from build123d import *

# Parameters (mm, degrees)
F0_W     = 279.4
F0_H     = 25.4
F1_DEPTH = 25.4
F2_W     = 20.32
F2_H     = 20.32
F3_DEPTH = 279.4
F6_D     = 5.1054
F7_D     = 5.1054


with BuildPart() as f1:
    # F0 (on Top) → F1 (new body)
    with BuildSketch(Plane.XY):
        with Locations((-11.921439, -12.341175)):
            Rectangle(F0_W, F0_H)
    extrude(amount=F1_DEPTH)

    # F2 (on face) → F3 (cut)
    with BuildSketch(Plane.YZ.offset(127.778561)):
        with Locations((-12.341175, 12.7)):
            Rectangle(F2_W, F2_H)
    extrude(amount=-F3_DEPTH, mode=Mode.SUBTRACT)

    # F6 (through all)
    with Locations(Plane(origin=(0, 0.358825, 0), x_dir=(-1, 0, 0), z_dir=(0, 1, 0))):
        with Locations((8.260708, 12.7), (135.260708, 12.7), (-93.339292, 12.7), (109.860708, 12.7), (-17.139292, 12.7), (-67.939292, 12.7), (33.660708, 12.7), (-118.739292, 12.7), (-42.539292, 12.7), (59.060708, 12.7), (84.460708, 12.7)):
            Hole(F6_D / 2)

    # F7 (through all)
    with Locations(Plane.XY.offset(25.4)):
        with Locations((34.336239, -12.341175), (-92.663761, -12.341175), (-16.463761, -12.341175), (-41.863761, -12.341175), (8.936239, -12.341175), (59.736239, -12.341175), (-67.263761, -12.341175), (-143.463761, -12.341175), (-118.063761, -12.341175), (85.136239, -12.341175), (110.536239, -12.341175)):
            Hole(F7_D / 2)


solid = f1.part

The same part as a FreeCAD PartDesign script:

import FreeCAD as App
import Part
import Sketcher
Q = App.Units.Quantity

doc = App.newDocument("Part")
params = doc.addObject("Spreadsheet::Sheet", "Params")
for row, (alias, value) in enumerate([
    ("sketch1_width", "11 in"),
    ("sketch1_height", "1 in"),
    ("pad1_length", "1 in"),
    ("sketch2_width", "0.8 in"),
    ("pocket1_length", "11 in"),
    ("sketch3_diameter", "0.201 in"),
    ("hole_diameter", "0.201 in"),
    ("sketch4_diameter", "0.201 in"),
    ("hole2_diameter", "0.201 in"),
], start=1):
    params.set(f"A{row}", alias)
    params.set(f"B{row}", "=" + value)
    params.setAlias(f"B{row}", alias)

body = doc.addObject("PartDesign::Body", "Body")

# Sketch on XY plane
sketch1 = body.newObject("Sketcher::SketchObject", "Sketch")
sketch1.AttachmentSupport = (doc.getObject("XY_Plane"), [""])
sketch1.MapMode = "FlatFace"
sketch1.addGeometry(Part.LineSegment(App.Vector(-151.621439, 0.358825, 0), App.Vector(-151.621439, -25.041175, 0)), False)
sketch1.addGeometry(Part.LineSegment(App.Vector(-151.621439, -25.041175, 0), App.Vector(127.778561, -25.041175, 0)), False)
sketch1.addGeometry(Part.LineSegment(App.Vector(127.778561, -25.041175, 0), App.Vector(127.778561, 0.358825, 0)), False)
sketch1.addGeometry(Part.LineSegment(App.Vector(127.778561, 0.358825, 0), App.Vector(-151.621439, 0.358825, 0)), False)
sketch1.addConstraint(Sketcher.Constraint("Coincident", 0, 2, 1, 1))
sketch1.addConstraint(Sketcher.Constraint("Coincident", 1, 2, 2, 1))
sketch1.addConstraint(Sketcher.Constraint("Coincident", 2, 2, 3, 1))
sketch1.addConstraint(Sketcher.Constraint("Coincident", 3, 2, 0, 1))
sketch1.addConstraint(Sketcher.Constraint("Vertical", 0))
sketch1.addConstraint(Sketcher.Constraint("Horizontal", 1))
sketch1.addConstraint(Sketcher.Constraint("Vertical", 2))
sketch1.addConstraint(Sketcher.Constraint("Horizontal", 3))
sketch1.addConstraint(Sketcher.Constraint("DistanceX", 1, 1, 1, 2, Q("11 in")))
sketch1.addConstraint(Sketcher.Constraint("DistanceY", 0, 2, 0, 1, Q("1 in")))
sketch1.addConstraint(Sketcher.Constraint("DistanceX", 0, 2, -1, 1, 151.621439))
sketch1.addConstraint(Sketcher.Constraint("DistanceY", 0, 2, -1, 1, 25.041175))
sketch1.setExpression("Constraints[8]", "Params.sketch1_width")
sketch1.setExpression("Constraints[9]", "Params.sketch1_height")
pad1 = body.newObject("PartDesign::Pad", "Pad")
pad1.Profile = sketch1
pad1.setExpression("Length", "Params.pad1_length")

# Sketch on YZ plane
sketch2 = body.newObject("Sketcher::SketchObject", "Sketch001")
sketch2.AttachmentSupport = (doc.getObject("YZ_Plane"), [""])
sketch2.MapMode = "FlatFace"
sketch2.AttachmentOffset = App.Placement(App.Vector(0, 0, 127.778561), App.Rotation())
sketch2.addGeometry(Part.LineSegment(App.Vector(-22.501175, 22.86, 0), App.Vector(-22.501175, 2.54, 0)), False)
sketch2.addGeometry(Part.LineSegment(App.Vector(-22.501175, 2.54, 0), App.Vector(-2.181175, 2.54, 0)), False)
sketch2.addGeometry(Part.LineSegment(App.Vector(-2.181175, 2.54, 0), App.Vector(-2.181175, 22.86, 0)), False)
sketch2.addGeometry(Part.LineSegment(App.Vector(-2.181175, 22.86, 0), App.Vector(-22.501175, 22.86, 0)), False)
sketch2.addConstraint(Sketcher.Constraint("Coincident", 0, 2, 1, 1))
sketch2.addConstraint(Sketcher.Constraint("Coincident", 1, 2, 2, 1))
sketch2.addConstraint(Sketcher.Constraint("Coincident", 2, 2, 3, 1))
sketch2.addConstraint(Sketcher.Constraint("Coincident", 3, 2, 0, 1))
sketch2.addConstraint(Sketcher.Constraint("Vertical", 0))
sketch2.addConstraint(Sketcher.Constraint("Horizontal", 1))
sketch2.addConstraint(Sketcher.Constraint("Vertical", 2))
sketch2.addConstraint(Sketcher.Constraint("Horizontal", 3))
sketch2.addConstraint(Sketcher.Constraint("Equal", 3, 0))
sketch2.addConstraint(Sketcher.Constraint("DistanceX", 1, 1, 1, 2, Q("0.8 in")))
sketch2.addConstraint(Sketcher.Constraint("DistanceY", -1, 1, 0, 2, Q("0.1 in")))
sketch2.addConstraint(Sketcher.Constraint("DistanceX", 0, 2, -1, 1, 22.501175))
sketch2.setExpression("Constraints[9]", "Params.sketch2_width")
pocket1 = body.newObject("PartDesign::Pocket", "Pocket")
pocket1.Profile = sketch2
pocket1.setExpression("Length", "Params.pocket1_length")

# Sketch on XZ plane
sketch3 = body.newObject("Sketcher::SketchObject", "Sketch002")
sketch3.AttachmentSupport = (doc.getObject("XZ_Plane"), [""])
sketch3.MapMode = "FlatFace"
sketch3.AttachmentOffset = App.Placement(App.Vector(0, 0, -0.358825), App.Rotation())
sketch3.addGeometry(Part.Circle(App.Vector(-8.260708, 12.7, 0), App.Vector(0, 0, 1), 2.5527), False)
sketch3.addGeometry(Part.Circle(App.Vector(-135.260708, 12.7, 0), App.Vector(0, 0, 1), 2.5527), False)
sketch3.addGeometry(Part.Circle(App.Vector(93.339292, 12.7, 0), App.Vector(0, 0, 1), 2.5527), False)
sketch3.addGeometry(Part.Circle(App.Vector(-109.860708, 12.7, 0), App.Vector(0, 0, 1), 2.5527), False)
sketch3.addGeometry(Part.Circle(App.Vector(17.139292, 12.7, 0), App.Vector(0, 0, 1), 2.5527), False)
sketch3.addGeometry(Part.Circle(App.Vector(67.939292, 12.7, 0), App.Vector(0, 0, 1), 2.5527), False)
sketch3.addGeometry(Part.Circle(App.Vector(-33.660708, 12.7, 0), App.Vector(0, 0, 1), 2.5527), False)
sketch3.addGeometry(Part.Circle(App.Vector(118.739292, 12.7, 0), App.Vector(0, 0, 1), 2.5527), False)
sketch3.addGeometry(Part.Circle(App.Vector(42.539292, 12.7, 0), App.Vector(0, 0, 1), 2.5527), False)
sketch3.addGeometry(Part.Circle(App.Vector(-59.060708, 12.7, 0), App.Vector(0, 0, 1), 2.5527), False)
sketch3.addGeometry(Part.Circle(App.Vector(-84.460708, 12.7, 0), App.Vector(0, 0, 1), 2.5527), False)
sketch3.addConstraint(Sketcher.Constraint("Equal", 0, 1))
sketch3.addConstraint(Sketcher.Constraint("Equal", 1, 2))
sketch3.addConstraint(Sketcher.Constraint("Equal", 2, 3))
sketch3.addConstraint(Sketcher.Constraint("Equal", 3, 4))
sketch3.addConstraint(Sketcher.Constraint("Equal", 4, 5))
sketch3.addConstraint(Sketcher.Constraint("Equal", 5, 6))
sketch3.addConstraint(Sketcher.Constraint("Equal", 6, 7))
sketch3.addConstraint(Sketcher.Constraint("Equal", 7, 8))
sketch3.addConstraint(Sketcher.Constraint("Equal", 8, 9))
sketch3.addConstraint(Sketcher.Constraint("Equal", 9, 10))
sketch3.addConstraint(Sketcher.Constraint("Horizontal", 0, 3, 1, 3))
sketch3.addConstraint(Sketcher.Constraint("Horizontal", 1, 3, 2, 3))
sketch3.addConstraint(Sketcher.Constraint("Horizontal", 2, 3, 3, 3))
sketch3.addConstraint(Sketcher.Constraint("Horizontal", 3, 3, 4, 3))
sketch3.addConstraint(Sketcher.Constraint("Horizontal", 4, 3, 5, 3))
sketch3.addConstraint(Sketcher.Constraint("Horizontal", 5, 3, 6, 3))
sketch3.addConstraint(Sketcher.Constraint("Horizontal", 6, 3, 7, 3))
sketch3.addConstraint(Sketcher.Constraint("Horizontal", 7, 3, 8, 3))
sketch3.addConstraint(Sketcher.Constraint("Horizontal", 8, 3, 9, 3))
sketch3.addConstraint(Sketcher.Constraint("Horizontal", 9, 3, 10, 3))
sketch3.addConstraint(Sketcher.Constraint("Diameter", 0, Q("0.201 in")))
sketch3.addConstraint(Sketcher.Constraint("DistanceX", 1, 3, 0, 3, Q("5 in")))
sketch3.addConstraint(Sketcher.Constraint("DistanceX", 0, 3, 2, 3, Q("4 in")))
sketch3.addConstraint(Sketcher.Constraint("DistanceX", 1, 3, 3, 3, Q("1 in")))
sketch3.addConstraint(Sketcher.Constraint("DistanceX", 0, 3, 4, 3, Q("1 in")))
sketch3.addConstraint(Sketcher.Constraint("DistanceX", 5, 3, 2, 3, Q("1 in")))
sketch3.addConstraint(Sketcher.Constraint("DistanceX", 6, 3, 0, 3, Q("1 in")))
sketch3.addConstraint(Sketcher.Constraint("DistanceX", 2, 3, 7, 3, Q("1 in")))
sketch3.addConstraint(Sketcher.Constraint("DistanceX", 8, 3, 5, 3, Q("1 in")))
sketch3.addConstraint(Sketcher.Constraint("DistanceX", 9, 3, 6, 3, Q("1 in")))
sketch3.addConstraint(Sketcher.Constraint("DistanceX", 10, 3, 9, 3, Q("1 in")))
sketch3.addConstraint(Sketcher.Constraint("DistanceY", -1, 1, 0, 3, Q("0.5 in")))
sketch3.addConstraint(Sketcher.Constraint("DistanceX", 1, 3, -1, 1, 135.260708))
sketch3.setExpression("Constraints[20]", "Params.sketch3_diameter")
doc.recompute()
hole = body.newObject("PartDesign::Hole", "Hole")
hole.Profile = sketch3
hole.ThreadType = "None"
hole.setExpression("Diameter", "Params.hole_diameter")
hole.DepthType = "ThroughAll"
hole.Reversed = True

# Sketch on XY plane
sketch4 = body.newObject("Sketcher::SketchObject", "Sketch003")
sketch4.AttachmentSupport = (doc.getObject("XY_Plane"), [""])
sketch4.MapMode = "FlatFace"
sketch4.AttachmentOffset = App.Placement(App.Vector(0, 0, 1 * 25.4), App.Rotation())
sketch4.addGeometry(Part.Circle(App.Vector(34.336239, -12.341175, 0), App.Vector(0, 0, 1), 2.5527), False)
sketch4.addGeometry(Part.Circle(App.Vector(-92.663761, -12.341175, 0), App.Vector(0, 0, 1), 2.5527), False)
sketch4.addGeometry(Part.Circle(App.Vector(-16.463761, -12.341175, 0), App.Vector(0, 0, 1), 2.5527), False)
sketch4.addGeometry(Part.Circle(App.Vector(-41.863761, -12.341175, 0), App.Vector(0, 0, 1), 2.5527), False)
sketch4.addGeometry(Part.Circle(App.Vector(8.936239, -12.341175, 0), App.Vector(0, 0, 1), 2.5527), False)
sketch4.addGeometry(Part.Circle(App.Vector(59.736239, -12.341175, 0), App.Vector(0, 0, 1), 2.5527), False)
sketch4.addGeometry(Part.Circle(App.Vector(-67.263761, -12.341175, 0), App.Vector(0, 0, 1), 2.5527), False)
sketch4.addGeometry(Part.Circle(App.Vector(-143.463761, -12.341175, 0), App.Vector(0, 0, 1), 2.5527), False)
sketch4.addGeometry(Part.Circle(App.Vector(-118.063761, -12.341175, 0), App.Vector(0, 0, 1), 2.5527), False)
sketch4.addGeometry(Part.Circle(App.Vector(85.136239, -12.341175, 0), App.Vector(0, 0, 1), 2.5527), False)
sketch4.addGeometry(Part.Circle(App.Vector(110.536239, -12.341175, 0), App.Vector(0, 0, 1), 2.5527), False)
sketch4.addConstraint(Sketcher.Constraint("Equal", 0, 1))
sketch4.addConstraint(Sketcher.Constraint("Equal", 1, 2))
sketch4.addConstraint(Sketcher.Constraint("Equal", 2, 3))
sketch4.addConstraint(Sketcher.Constraint("Equal", 3, 4))
sketch4.addConstraint(Sketcher.Constraint("Equal", 4, 5))
sketch4.addConstraint(Sketcher.Constraint("Equal", 5, 6))
sketch4.addConstraint(Sketcher.Constraint("Equal", 6, 7))
sketch4.addConstraint(Sketcher.Constraint("Equal", 7, 8))
sketch4.addConstraint(Sketcher.Constraint("Equal", 8, 9))
sketch4.addConstraint(Sketcher.Constraint("Equal", 9, 10))
sketch4.addConstraint(Sketcher.Constraint("Horizontal", 0, 3, 1, 3))
sketch4.addConstraint(Sketcher.Constraint("Horizontal", 1, 3, 2, 3))
sketch4.addConstraint(Sketcher.Constraint("Horizontal", 2, 3, 3, 3))
sketch4.addConstraint(Sketcher.Constraint("Horizontal", 3, 3, 4, 3))
sketch4.addConstraint(Sketcher.Constraint("Horizontal", 4, 3, 5, 3))
sketch4.addConstraint(Sketcher.Constraint("Horizontal", 5, 3, 6, 3))
sketch4.addConstraint(Sketcher.Constraint("Horizontal", 6, 3, 7, 3))
sketch4.addConstraint(Sketcher.Constraint("Horizontal", 7, 3, 8, 3))
sketch4.addConstraint(Sketcher.Constraint("Horizontal", 8, 3, 9, 3))
sketch4.addConstraint(Sketcher.Constraint("Horizontal", 9, 3, 10, 3))
sketch4.addConstraint(Sketcher.Constraint("Diameter", 0, Q("0.201 in")))
sketch4.addConstraint(Sketcher.Constraint("DistanceX", 1, 3, 0, 3, Q("5 in")))
sketch4.addConstraint(Sketcher.Constraint("DistanceX", 2, 3, 0, 3, Q("2 in")))
sketch4.addConstraint(Sketcher.Constraint("DistanceX", 3, 3, 2, 3, Q("1 in")))
sketch4.addConstraint(Sketcher.Constraint("DistanceX", 4, 3, 0, 3, Q("1 in")))
sketch4.addConstraint(Sketcher.Constraint("DistanceX", 0, 3, 5, 3, Q("1 in")))
sketch4.addConstraint(Sketcher.Constraint("DistanceX", 1, 3, 6, 3, Q("1 in")))
sketch4.addConstraint(Sketcher.Constraint("DistanceX", 7, 3, 1, 3, Q("2 in")))
sketch4.addConstraint(Sketcher.Constraint("DistanceX", 8, 3, 1, 3, Q("1 in")))
sketch4.addConstraint(Sketcher.Constraint("DistanceX", 5, 3, 9, 3, Q("1 in")))
sketch4.addConstraint(Sketcher.Constraint("DistanceX", 9, 3, 10, 3, Q("1 in")))
sketch4.addConstraint(Sketcher.Constraint("DistanceX", -1, 1, 0, 3, 34.336239))
sketch4.addConstraint(Sketcher.Constraint("DistanceY", 0, 3, -1, 1, 12.341175))
sketch4.setExpression("Constraints[20]", "Params.sketch4_diameter")
doc.recompute()
hole2 = body.newObject("PartDesign::Hole", "Hole001")
hole2.Profile = sketch4
hole2.ThreadType = "None"
hole2.setExpression("Diameter", "Params.hole2_diameter")
hole2.DepthType = "ThroughAll"

doc.recompute()
